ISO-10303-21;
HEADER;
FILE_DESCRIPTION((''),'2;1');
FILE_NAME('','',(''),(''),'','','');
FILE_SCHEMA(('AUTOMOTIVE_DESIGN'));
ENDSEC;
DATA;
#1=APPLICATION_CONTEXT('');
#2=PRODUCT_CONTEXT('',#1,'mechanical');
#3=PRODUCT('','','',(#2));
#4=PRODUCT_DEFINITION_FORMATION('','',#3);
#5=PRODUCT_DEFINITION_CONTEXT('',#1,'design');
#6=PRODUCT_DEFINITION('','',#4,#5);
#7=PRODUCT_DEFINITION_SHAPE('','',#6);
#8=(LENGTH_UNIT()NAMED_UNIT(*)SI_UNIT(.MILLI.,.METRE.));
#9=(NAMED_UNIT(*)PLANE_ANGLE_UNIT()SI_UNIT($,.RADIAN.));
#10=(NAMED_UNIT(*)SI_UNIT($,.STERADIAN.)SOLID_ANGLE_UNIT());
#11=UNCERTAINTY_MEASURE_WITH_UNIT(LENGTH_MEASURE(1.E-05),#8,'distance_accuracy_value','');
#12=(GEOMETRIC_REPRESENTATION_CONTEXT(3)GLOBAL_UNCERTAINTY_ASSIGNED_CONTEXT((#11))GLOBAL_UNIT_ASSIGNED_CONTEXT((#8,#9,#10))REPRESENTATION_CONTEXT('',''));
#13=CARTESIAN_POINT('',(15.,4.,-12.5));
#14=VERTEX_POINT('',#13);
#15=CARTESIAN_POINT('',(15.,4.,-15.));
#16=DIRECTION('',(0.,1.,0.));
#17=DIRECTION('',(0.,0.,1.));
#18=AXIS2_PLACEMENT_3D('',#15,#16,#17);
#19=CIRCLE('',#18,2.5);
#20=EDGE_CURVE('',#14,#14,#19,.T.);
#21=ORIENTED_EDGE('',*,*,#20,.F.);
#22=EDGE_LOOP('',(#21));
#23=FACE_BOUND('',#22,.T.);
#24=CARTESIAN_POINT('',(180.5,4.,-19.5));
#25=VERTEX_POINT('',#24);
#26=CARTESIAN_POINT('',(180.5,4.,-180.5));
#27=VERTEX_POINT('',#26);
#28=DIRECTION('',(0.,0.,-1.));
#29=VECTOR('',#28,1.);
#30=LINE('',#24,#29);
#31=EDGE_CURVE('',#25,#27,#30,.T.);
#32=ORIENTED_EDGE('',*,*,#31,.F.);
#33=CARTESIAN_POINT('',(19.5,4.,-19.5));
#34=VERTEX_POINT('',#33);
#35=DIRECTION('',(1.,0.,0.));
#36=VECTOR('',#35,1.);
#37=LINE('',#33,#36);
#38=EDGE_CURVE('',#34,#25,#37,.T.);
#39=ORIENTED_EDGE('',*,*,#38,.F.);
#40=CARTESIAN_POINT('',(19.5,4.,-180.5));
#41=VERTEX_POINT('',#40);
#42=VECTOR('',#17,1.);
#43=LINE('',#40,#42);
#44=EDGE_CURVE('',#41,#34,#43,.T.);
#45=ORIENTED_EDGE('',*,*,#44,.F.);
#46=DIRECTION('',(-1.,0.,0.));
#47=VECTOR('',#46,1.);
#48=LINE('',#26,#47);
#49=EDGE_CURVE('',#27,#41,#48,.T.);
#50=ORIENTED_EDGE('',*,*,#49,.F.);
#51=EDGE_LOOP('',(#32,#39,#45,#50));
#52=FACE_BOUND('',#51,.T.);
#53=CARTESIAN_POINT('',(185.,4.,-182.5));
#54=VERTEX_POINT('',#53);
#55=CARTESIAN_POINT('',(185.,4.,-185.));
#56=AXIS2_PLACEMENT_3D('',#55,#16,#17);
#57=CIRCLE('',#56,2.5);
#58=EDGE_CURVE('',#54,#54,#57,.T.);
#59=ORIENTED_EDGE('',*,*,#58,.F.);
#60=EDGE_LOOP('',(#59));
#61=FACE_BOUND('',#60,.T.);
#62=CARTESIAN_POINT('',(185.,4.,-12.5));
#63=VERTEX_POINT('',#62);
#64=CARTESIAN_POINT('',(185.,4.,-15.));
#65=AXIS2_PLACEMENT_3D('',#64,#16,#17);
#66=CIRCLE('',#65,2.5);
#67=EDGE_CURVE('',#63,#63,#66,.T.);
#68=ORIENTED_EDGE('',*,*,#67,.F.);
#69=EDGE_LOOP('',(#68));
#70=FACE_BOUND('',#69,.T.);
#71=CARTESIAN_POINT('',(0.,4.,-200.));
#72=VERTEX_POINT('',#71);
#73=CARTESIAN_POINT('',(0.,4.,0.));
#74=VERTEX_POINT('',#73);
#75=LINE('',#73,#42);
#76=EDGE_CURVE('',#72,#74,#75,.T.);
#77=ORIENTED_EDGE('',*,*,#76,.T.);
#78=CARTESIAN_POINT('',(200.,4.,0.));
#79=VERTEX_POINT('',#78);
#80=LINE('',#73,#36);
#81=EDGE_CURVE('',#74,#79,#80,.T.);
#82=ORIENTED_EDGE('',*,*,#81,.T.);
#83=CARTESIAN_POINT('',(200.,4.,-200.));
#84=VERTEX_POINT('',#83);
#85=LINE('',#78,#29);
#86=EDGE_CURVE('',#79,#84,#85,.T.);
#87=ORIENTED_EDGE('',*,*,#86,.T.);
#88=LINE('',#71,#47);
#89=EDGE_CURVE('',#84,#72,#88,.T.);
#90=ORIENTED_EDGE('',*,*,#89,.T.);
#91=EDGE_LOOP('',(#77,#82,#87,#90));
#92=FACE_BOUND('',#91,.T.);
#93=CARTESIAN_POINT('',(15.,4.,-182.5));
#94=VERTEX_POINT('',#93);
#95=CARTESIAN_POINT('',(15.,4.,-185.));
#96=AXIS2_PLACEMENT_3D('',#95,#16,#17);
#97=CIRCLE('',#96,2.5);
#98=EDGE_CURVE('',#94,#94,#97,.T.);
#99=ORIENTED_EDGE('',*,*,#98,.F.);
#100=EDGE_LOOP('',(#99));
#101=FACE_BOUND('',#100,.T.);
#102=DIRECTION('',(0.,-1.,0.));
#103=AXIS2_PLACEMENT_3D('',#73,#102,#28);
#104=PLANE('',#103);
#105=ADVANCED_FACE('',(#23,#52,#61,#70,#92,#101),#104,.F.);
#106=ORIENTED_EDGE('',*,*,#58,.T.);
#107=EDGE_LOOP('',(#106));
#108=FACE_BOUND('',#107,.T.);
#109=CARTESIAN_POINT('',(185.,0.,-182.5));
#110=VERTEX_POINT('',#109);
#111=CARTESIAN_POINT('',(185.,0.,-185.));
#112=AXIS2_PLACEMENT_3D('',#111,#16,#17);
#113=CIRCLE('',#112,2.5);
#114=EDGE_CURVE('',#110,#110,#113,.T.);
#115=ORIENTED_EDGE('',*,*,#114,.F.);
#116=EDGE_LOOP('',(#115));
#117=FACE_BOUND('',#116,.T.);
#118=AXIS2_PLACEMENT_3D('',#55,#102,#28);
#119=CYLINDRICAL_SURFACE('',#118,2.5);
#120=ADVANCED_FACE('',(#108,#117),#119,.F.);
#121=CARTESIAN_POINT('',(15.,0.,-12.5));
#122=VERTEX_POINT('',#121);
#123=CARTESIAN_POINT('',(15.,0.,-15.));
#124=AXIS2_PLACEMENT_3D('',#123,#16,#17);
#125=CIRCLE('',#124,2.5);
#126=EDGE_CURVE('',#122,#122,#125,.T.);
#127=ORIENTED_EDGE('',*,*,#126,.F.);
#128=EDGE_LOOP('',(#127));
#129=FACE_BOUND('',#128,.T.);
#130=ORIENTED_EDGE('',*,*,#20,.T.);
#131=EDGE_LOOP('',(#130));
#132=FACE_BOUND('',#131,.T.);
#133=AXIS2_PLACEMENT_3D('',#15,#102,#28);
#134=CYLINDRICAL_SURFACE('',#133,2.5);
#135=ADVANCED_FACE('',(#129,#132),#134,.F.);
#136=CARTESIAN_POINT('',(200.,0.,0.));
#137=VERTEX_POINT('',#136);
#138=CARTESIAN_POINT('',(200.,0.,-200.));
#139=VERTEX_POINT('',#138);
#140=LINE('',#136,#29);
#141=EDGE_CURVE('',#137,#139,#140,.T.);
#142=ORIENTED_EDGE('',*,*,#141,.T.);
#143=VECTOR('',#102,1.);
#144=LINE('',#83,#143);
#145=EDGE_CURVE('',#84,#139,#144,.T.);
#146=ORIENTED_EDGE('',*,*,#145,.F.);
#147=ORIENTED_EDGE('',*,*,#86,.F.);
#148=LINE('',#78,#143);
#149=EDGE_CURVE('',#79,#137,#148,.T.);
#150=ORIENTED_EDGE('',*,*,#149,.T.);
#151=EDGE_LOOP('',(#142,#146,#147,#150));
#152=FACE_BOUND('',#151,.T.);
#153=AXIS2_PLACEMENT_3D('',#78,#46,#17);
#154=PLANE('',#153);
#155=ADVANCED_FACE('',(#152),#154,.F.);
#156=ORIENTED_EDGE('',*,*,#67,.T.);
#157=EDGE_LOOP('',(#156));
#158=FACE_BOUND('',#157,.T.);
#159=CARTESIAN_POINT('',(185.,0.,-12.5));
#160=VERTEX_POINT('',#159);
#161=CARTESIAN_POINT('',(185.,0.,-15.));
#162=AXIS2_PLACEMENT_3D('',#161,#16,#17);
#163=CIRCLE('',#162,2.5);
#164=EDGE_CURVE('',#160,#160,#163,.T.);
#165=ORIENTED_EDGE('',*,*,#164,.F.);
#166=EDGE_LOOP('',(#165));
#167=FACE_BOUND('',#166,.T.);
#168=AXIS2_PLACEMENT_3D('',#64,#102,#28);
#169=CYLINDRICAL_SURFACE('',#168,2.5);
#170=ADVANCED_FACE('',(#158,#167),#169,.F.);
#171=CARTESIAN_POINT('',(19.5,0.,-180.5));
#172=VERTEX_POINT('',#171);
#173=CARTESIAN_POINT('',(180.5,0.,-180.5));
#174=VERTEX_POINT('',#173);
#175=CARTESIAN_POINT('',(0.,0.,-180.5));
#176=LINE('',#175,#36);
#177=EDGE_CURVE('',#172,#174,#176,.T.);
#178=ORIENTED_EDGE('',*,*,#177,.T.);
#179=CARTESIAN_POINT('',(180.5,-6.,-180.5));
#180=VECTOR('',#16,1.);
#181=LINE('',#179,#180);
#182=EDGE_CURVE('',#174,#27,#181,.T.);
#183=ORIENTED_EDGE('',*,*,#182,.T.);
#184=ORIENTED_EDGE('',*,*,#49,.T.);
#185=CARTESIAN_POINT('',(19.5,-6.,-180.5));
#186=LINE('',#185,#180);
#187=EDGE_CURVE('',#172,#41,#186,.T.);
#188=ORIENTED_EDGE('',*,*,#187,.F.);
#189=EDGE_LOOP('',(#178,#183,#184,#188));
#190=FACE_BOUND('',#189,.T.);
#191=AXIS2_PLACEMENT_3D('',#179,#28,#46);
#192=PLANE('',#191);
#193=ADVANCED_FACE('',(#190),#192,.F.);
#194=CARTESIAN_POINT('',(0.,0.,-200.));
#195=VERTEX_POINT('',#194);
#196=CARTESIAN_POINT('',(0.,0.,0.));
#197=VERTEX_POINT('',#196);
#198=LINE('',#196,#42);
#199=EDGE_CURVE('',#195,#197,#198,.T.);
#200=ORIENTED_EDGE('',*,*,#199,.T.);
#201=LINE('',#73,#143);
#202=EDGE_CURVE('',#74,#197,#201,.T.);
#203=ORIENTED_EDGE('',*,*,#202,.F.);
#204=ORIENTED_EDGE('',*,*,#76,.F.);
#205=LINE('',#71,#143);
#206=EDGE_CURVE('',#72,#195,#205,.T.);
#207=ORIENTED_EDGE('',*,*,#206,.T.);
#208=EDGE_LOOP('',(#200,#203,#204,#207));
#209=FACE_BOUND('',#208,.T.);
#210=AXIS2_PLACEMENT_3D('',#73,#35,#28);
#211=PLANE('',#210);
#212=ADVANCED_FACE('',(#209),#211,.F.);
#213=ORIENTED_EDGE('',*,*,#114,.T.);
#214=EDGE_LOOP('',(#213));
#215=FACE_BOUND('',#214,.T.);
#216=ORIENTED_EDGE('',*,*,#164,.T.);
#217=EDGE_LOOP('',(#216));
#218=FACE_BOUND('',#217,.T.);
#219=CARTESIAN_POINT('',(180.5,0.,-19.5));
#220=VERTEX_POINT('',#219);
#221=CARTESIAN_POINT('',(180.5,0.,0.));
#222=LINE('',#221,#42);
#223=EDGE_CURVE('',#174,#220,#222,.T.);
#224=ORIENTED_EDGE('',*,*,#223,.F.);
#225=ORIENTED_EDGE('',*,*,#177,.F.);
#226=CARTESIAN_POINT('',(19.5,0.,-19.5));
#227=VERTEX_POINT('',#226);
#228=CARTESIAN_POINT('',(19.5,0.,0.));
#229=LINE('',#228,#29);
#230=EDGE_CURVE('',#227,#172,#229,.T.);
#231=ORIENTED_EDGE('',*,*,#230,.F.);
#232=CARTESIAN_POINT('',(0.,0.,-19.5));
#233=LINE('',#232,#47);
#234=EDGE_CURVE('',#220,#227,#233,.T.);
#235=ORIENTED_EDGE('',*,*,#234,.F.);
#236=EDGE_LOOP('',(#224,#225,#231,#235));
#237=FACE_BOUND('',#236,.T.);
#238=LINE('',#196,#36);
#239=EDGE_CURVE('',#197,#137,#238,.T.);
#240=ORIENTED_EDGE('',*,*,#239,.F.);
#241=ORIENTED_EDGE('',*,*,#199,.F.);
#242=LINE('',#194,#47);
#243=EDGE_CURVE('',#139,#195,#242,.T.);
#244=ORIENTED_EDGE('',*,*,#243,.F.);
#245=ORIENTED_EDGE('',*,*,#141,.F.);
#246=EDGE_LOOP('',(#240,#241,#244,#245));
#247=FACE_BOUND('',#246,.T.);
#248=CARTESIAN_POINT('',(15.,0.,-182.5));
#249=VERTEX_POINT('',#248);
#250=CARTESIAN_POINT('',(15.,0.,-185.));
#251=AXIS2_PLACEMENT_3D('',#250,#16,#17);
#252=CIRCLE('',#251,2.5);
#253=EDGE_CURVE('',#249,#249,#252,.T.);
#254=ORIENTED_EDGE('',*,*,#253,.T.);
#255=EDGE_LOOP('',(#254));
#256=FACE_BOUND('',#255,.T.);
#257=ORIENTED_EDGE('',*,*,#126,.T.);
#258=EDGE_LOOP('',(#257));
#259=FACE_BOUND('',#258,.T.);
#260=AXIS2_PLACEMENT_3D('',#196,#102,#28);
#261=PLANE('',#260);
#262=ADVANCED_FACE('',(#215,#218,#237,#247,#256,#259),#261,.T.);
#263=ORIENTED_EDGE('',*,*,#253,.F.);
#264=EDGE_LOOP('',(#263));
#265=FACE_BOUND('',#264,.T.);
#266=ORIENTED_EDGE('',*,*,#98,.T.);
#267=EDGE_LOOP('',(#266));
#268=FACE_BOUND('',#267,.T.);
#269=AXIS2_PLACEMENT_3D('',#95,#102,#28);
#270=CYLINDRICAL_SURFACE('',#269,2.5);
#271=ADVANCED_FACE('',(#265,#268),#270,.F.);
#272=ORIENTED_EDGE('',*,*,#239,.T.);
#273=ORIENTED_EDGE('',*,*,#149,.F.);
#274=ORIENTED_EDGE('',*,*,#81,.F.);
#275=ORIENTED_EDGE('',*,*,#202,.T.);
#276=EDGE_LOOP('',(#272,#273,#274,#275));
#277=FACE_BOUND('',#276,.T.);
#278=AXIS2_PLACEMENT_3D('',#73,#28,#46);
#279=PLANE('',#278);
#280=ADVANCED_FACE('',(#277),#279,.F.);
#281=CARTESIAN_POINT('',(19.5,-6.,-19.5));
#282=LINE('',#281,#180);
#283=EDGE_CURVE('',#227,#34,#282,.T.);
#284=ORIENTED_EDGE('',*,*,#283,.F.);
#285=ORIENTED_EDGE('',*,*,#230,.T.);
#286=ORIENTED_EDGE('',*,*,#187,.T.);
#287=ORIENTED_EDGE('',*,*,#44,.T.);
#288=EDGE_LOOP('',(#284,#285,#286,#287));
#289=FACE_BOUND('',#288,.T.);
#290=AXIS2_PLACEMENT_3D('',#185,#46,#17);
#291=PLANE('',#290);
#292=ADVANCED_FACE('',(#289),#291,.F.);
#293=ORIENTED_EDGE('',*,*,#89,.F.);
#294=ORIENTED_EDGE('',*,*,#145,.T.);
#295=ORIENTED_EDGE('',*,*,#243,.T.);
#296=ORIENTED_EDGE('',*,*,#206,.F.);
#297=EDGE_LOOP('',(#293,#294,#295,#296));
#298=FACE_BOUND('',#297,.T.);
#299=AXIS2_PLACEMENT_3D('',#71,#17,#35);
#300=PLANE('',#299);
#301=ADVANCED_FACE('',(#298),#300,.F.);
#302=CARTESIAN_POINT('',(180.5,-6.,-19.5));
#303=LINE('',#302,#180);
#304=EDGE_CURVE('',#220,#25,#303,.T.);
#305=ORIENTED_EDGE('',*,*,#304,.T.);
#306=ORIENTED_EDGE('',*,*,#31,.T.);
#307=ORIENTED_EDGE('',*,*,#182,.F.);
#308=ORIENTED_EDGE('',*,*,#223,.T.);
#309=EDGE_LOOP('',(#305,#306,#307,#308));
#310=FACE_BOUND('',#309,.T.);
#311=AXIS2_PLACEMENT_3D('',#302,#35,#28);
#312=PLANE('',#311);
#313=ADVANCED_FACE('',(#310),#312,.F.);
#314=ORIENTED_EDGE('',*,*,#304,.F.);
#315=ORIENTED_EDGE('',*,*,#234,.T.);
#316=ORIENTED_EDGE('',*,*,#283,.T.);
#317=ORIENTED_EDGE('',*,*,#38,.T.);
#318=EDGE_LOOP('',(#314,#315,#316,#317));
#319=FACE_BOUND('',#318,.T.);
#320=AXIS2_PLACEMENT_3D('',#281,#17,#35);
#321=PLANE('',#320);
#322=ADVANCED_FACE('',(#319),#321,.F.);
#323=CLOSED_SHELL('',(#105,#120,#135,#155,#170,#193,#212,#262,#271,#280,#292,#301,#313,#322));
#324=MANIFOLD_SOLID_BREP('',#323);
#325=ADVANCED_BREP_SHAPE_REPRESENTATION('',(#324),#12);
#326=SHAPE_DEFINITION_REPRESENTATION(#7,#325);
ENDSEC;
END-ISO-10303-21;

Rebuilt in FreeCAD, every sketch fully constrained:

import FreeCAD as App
import Part
import Sketcher
from FreeCAD import Vector


def add_polygon(sketch, points):
    """Adds a closed chain of lines whose ends are joined by coincident constraints."""
    first, n = sketch.GeometryCount, len(points)
    for a, b in zip(points, points[1:] + points[:1]):
        sketch.addGeometry(Part.LineSegment(App.Vector(*a, 0), App.Vector(*b, 0)), False)
    for i in range(n):
        sketch.addConstraint(Sketcher.Constraint("Coincident", first + i, 2, first + (i + 1) % n, 1))

doc = App.newDocument("Part")
body = doc.addObject("PartDesign::Body", "Body")

# Sketch on XZ plane
sketch1 = body.newObject("Sketcher::SketchObject", "Sketch")
sketch1.AttachmentSupport = (doc.getObject("XZ_Plane"), [""])
sketch1.MapMode = "FlatFace"
add_polygon(sketch1, [(0, -200), (0, 0), (200, 0), (200, -200)])  # lines 0-3
sketch1.addGeometry(Part.Circle(Vector(15, -15, 0), Vector(0, 0, 1), 2.5), False)  # 4
sketch1.addGeometry(Part.Circle(Vector(185, -15, 0), Vector(0, 0, 1), 2.5), False)  # 5
sketch1.addGeometry(Part.Circle(Vector(15, -185, 0), Vector(0, 0, 1), 2.5), False)  # 6
sketch1.addGeometry(Part.Circle(Vector(185, -185, 0), Vector(0, 0, 1), 2.5), False)  # 7
sketch1.addConstraint(Sketcher.Constraint("Vertical", 0))
sketch1.addConstraint(Sketcher.Constraint("Horizontal", 1))
sketch1.addConstraint(Sketcher.Constraint("Vertical", 2))
sketch1.addConstraint(Sketcher.Constraint("Horizontal", 3))
sketch1.addConstraint(Sketcher.Constraint("Coincident", 0, 2, -1, 1))
sketch1.addConstraint(Sketcher.Constraint("Equal", 4, 5))
sketch1.addConstraint(Sketcher.Constraint("Equal", 5, 6))
sketch1.addConstraint(Sketcher.Constraint("Equal", 6, 7))
sketch1.addConstraint(Sketcher.Constraint("Horizontal", 4, 3, 5, 3))
sketch1.addConstraint(Sketcher.Constraint("Horizontal", 6, 3, 7, 3))
sketch1.addConstraint(Sketcher.Constraint("Vertical", 4, 3, 6, 3))
sketch1.addConstraint(Sketcher.Constraint("Vertical", 5, 3, 7, 3))
sketch1.addConstraint(Sketcher.Constraint("Equal", 3, 0))
sketch1.addConstraint(Sketcher.Constraint("Diameter", 4, 5.0))
sketch1.addConstraint(Sketcher.Constraint("DistanceX", 1, 1, 1, 2, 200.0))
sketch1.addConstraint(Sketcher.Constraint("DistanceX", -1, 1, 4, 3, 15.0))
sketch1.addConstraint(Sketcher.Constraint("DistanceY", 4, 3, -1, 1, 15.0))
sketch1.addConstraint(Sketcher.Constraint("DistanceX", -1, 1, 5, 3, 185.0))
sketch1.addConstraint(Sketcher.Constraint("DistanceY", 6, 3, -1, 1, 185.0))
pad1 = body.newObject("PartDesign::Pad", "Pad")
pad1.Profile = sketch1
pad1.Length = 4
pad1.Reversed = True

# Sketch on XZ plane
sketch2 = body.newObject("Sketcher::SketchObject", "Sketch001")
sketch2.AttachmentSupport = (doc.getObject("XZ_Plane"), [""])
sketch2.MapMode = "FlatFace"
sketch2.AttachmentOffset = App.Placement(Vector(0, 0, -4), App.Rotation())
add_polygon(sketch2, [(21, -179), (21, -21), (179, -21), (179, -179)])  # lines 0-3
sketch2.addConstraint(Sketcher.Constraint("Vertical", 0))
sketch2.addConstraint(Sketcher.Constraint("Horizontal", 1))
sketch2.addConstraint(Sketcher.Constraint("Vertical", 2))
sketch2.addConstraint(Sketcher.Constraint("Horizontal", 3))
sketch2.addConstraint(Sketcher.Constraint("Equal", 3, 0))
sketch2.addConstraint(Sketcher.Constraint("DistanceX", 1, 1, 1, 2, 158.0))
sketch2.addConstraint(Sketcher.Constraint("DistanceX", -1, 1, 0, 2, 21.0))
sketch2.addConstraint(Sketcher.Constraint("DistanceY", 0, 2, -1, 1, 21.0))
pocket1 = body.newObject("PartDesign::Pocket", "Pocket")
pocket1.Profile = sketch2
pocket1.Length = 10
pocket1.Reversed = True

# Sketch on XZ plane
sketch3 = body.newObject("Sketcher::SketchObject", "Sketch002")
sketch3.AttachmentSupport = (doc.getObject("XZ_Plane"), [""])
sketch3.MapMode = "FlatFace"
sketch3.AttachmentOffset = App.Placement(Vector(0, 0, -4), App.Rotation())
add_polygon(sketch3, [(19.5, -180.5), (19.5, -19.5), (180.5, -19.5), (180.5, -180.5)])  # lines 0-3
sketch3.addConstraint(Sketcher.Constraint("Vertical", 0))
sketch3.addConstraint(Sketcher.Constraint("Horizontal", 1))
sketch3.addConstraint(Sketcher.Constraint("Vertical", 2))
sketch3.addConstraint(Sketcher.Constraint("Horizontal", 3))
sketch3.addConstraint(Sketcher.Constraint("Equal", 3, 0))
sketch3.addConstraint(Sketcher.Constraint("DistanceX", 1, 1, 1, 2, 161.0))
sketch3.addConstraint(Sketcher.Constraint("DistanceX", -1, 1, 0, 2, 19.5))
sketch3.addConstraint(Sketcher.Constraint("DistanceY", 0, 2, -1, 1, 19.5))
pocket2 = body.newObject("PartDesign::Pocket", "Pocket001")
pocket2.Profile = sketch3
pocket2.Length = 10
pocket2.Reversed = True

doc.recompute()
